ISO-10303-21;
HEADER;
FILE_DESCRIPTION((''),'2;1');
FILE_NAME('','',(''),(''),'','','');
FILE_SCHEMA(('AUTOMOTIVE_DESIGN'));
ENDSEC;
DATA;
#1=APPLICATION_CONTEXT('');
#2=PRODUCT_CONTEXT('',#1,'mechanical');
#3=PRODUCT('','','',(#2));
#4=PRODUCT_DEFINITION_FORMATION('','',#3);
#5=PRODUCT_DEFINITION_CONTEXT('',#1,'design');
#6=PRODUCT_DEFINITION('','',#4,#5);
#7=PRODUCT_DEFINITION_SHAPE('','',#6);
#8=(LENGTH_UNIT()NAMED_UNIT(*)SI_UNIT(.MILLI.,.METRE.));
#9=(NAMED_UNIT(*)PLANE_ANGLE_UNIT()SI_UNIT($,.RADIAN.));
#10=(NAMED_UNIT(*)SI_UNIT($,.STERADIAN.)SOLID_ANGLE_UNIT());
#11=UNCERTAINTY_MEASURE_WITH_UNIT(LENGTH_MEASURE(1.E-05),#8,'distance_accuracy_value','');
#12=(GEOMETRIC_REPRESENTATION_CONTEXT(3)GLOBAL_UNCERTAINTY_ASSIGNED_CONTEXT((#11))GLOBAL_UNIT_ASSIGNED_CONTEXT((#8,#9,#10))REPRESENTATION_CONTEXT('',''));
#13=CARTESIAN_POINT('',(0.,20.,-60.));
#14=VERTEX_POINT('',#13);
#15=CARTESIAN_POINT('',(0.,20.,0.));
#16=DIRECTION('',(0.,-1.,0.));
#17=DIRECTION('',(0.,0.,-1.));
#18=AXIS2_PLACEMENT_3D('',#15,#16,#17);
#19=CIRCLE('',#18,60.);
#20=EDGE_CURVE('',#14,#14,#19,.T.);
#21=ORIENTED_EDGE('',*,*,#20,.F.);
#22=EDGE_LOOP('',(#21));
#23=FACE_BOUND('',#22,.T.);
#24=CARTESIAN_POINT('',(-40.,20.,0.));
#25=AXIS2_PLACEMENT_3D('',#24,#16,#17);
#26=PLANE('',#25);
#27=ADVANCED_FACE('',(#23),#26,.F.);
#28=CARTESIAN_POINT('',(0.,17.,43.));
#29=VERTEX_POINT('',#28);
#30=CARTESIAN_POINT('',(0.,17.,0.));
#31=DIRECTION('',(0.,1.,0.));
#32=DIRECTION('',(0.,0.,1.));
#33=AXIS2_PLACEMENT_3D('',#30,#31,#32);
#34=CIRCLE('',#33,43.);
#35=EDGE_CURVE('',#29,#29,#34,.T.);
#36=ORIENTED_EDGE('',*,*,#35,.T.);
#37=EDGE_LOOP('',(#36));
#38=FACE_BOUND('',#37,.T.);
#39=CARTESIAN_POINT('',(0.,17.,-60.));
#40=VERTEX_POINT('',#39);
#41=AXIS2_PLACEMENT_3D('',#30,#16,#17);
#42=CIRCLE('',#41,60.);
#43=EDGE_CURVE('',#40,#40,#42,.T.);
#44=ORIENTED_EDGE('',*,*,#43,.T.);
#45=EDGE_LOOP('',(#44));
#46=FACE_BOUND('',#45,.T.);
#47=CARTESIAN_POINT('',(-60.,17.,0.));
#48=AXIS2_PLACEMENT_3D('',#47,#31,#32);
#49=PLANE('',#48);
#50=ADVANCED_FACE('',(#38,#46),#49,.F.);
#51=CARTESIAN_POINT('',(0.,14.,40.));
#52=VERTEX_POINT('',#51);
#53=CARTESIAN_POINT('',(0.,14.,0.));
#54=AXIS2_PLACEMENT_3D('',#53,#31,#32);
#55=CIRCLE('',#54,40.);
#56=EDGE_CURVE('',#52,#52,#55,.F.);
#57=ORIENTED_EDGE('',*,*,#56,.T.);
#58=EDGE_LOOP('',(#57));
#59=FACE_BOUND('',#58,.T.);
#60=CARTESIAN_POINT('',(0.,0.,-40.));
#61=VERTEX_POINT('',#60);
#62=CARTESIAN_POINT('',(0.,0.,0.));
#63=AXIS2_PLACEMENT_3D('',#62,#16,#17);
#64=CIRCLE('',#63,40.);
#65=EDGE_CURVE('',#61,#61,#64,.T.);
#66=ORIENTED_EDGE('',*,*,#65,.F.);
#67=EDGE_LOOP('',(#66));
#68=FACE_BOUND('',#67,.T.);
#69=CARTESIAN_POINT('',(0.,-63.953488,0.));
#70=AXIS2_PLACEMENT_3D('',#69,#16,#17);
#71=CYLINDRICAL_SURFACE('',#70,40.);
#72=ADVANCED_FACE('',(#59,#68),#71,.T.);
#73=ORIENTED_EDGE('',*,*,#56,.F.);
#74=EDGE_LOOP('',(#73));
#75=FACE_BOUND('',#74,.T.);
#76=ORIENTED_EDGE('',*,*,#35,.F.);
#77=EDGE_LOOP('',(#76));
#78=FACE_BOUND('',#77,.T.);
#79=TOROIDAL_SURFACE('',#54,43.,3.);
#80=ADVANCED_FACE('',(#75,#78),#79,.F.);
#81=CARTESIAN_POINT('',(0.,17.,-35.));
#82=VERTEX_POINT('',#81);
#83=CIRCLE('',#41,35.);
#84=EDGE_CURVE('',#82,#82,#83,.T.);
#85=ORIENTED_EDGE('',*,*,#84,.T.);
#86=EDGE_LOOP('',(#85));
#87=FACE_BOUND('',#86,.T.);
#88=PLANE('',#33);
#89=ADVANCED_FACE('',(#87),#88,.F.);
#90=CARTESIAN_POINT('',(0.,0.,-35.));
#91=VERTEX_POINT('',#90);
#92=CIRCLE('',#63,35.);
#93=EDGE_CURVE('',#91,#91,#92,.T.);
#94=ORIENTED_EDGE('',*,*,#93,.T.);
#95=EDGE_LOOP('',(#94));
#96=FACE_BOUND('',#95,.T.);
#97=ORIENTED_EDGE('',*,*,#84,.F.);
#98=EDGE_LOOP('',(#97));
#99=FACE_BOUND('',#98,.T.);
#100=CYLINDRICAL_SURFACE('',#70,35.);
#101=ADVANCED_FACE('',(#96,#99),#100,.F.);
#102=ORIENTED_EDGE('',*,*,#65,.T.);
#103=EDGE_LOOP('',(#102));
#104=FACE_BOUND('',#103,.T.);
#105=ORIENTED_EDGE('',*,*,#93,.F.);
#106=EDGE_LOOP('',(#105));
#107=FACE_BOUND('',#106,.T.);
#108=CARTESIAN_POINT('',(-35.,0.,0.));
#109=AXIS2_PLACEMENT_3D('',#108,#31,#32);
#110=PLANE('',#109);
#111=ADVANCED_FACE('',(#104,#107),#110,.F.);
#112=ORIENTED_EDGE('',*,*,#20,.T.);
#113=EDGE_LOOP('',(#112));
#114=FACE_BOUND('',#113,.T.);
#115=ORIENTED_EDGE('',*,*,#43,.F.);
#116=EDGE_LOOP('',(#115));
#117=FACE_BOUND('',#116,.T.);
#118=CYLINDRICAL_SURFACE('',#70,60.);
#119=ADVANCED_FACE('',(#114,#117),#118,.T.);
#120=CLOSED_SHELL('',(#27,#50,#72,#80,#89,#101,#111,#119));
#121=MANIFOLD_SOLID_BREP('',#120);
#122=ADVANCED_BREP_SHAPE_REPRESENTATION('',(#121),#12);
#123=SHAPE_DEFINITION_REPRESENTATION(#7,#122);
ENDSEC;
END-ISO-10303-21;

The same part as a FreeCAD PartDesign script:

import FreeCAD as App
import Part
import Sketcher
from FreeCAD import Vector


def edges_at(feature, points):
    """Names of the edges that pass closest to the given points."""
    edges = feature.Shape.Edges
    near = lambda p: min(range(len(edges)), key=lambda i: edges[i].distToShape(Part.Vertex(*p))[0])
    return sorted({f"Edge{near(p) + 1}" for p in points})

doc = App.newDocument("Part")
body = doc.addObject("PartDesign::Body", "Body")

# Sketch on XY plane
sketch1 = body.newObject("Sketcher::SketchObject", "Sketch")
sketch1.AttachmentSupport = (doc.getObject("XY_Plane"), [""])
sketch1.MapMode = "FlatFace"
sketch1.addGeometry([
    Part.LineSegment(Vector(-60, 20, 0), Vector(-60, 17, 0)),  # 0
    Part.LineSegment(Vector(-60, 17, 0), Vector(-40, 17, 0)),  # 1
    Part.LineSegment(Vector(-40, 17, 0), Vector(-40, 0, 0)),  # 2
    Part.LineSegment(Vector(-40, 0, 0), Vector(-35, 0, 0)),  # 3
    Part.LineSegment(Vector(-35, 0, 0), Vector(-35, 17, 0)),  # 4
    Part.LineSegment(Vector(-35, 17, 0), Vector(0, 17, 0)),  # 5
    Part.LineSegment(Vector(0, 17, 0), Vector(0, 20, 0)),  # 6
    Part.LineSegment(Vector(0, 20, 0), Vector(-60, 20, 0)),  # 7
], False)
sketch1.addConstraint([
    Sketcher.Constraint("Coincident", 0, 2, 1, 1),
    Sketcher.Constraint("Coincident", 1, 2, 2, 1),
    Sketcher.Constraint("Coincident", 2, 2, 3, 1),
    Sketcher.Constraint("Coincident", 3, 2, 4, 1),
    Sketcher.Constraint("Coincident", 4, 2, 5, 1),
    Sketcher.Constraint("Coincident", 5, 2, 6, 1),
    Sketcher.Constraint("Coincident", 6, 2, 7, 1),
    Sketcher.Constraint("Coincident", 7, 2, 0, 1),
    Sketcher.Constraint("Vertical", 0),
    Sketcher.Constraint("Horizontal", 1),
    Sketcher.Constraint("Vertical", 2),
    Sketcher.Constraint("Horizontal", 3),
    Sketcher.Constraint("Vertical", 4),
    Sketcher.Constraint("Horizontal", 5),
    Sketcher.Constraint("Vertical", 6),
    Sketcher.Constraint("Horizontal", 7),
    Sketcher.Constraint("PointOnObject", 2, 2, -1),
    Sketcher.Constraint("PointOnObject", 5, 2, -2),
    Sketcher.Constraint("Horizontal", 1, 2, 4, 2),
    Sketcher.Constraint("DistanceX", 1, 1, 1, 2, 20.0),
    Sketcher.Constraint("DistanceX", 3, 1, 3, 2, 5.0),
    Sketcher.Constraint("DistanceX", 5, 1, 5, 2, 35.0),
    Sketcher.Constraint("DistanceY", 0, 2, 0, 1, 3.0),
    Sketcher.Constraint("DistanceY", 2, 2, 2, 1, 17.0),
])
revolution = body.newObject("PartDesign::Revolution", "Revolution")
revolution.Profile = sketch1
revolution.ReferenceAxis = (sketch1, ["V_Axis"])
revolution.Angle = 360
doc.recompute()

fillet = body.newObject("PartDesign::Fillet", "Fillet")
fillet.Base = (revolution, edges_at(revolution, [(0, 17, 40)]))
fillet.Radius = 3

doc.recompute()
